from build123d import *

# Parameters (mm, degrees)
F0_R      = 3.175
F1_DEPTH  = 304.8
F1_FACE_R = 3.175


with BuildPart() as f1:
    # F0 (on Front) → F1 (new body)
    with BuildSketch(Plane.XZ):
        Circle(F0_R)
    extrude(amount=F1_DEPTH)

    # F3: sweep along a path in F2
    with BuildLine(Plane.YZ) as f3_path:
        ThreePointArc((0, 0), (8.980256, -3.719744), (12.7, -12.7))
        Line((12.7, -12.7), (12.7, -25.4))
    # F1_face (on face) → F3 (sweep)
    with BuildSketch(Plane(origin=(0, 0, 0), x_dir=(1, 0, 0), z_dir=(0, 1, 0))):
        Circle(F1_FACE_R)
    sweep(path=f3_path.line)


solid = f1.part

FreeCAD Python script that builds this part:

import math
import FreeCAD as App
import Part
import Sketcher
Q = App.Units.Quantity

doc = App.newDocument("Part")
body = doc.addObject("PartDesign::Body", "Body")

sketch1 = body.newObject("Sketcher::SketchObject", "Sketch")
sketch1.AttachmentSupport = (doc.getObject("XZ_Plane"), [""])
sketch1.MapMode = "FlatFace"
sketch1.addGeometry(Part.Circle(App.Vector(0, 0, 0), App.Vector(0, 0, 1), 3.2), False)
sketch1.addConstraint([
    Sketcher.Constraint("Coincident", 0, 3, -1, 1),
    Sketcher.Constraint("Diameter", 0, Q("0.25 in")),
])
pad1 = body.newObject("PartDesign::Pad", "Pad")
pad1.Profile = sketch1
pad1.Length = Q("12 in")

sketch2 = body.newObject("Sketcher::SketchObject", "Sketch001")
sketch2.AttachmentSupport = (doc.getObject("XZ_Plane"), [""])
sketch2.MapMode = "FlatFace"
sketch2.addGeometry(Part.Circle(App.Vector(0, 0, 0), App.Vector(0, 0, 1), 3.2), False)
sketch2.addConstraint([
    Sketcher.Constraint("Coincident", 0, 3, -1, 1),
    Sketcher.Constraint("Diameter", 0, Q("0.25 in")),
])

sketch3 = body.newObject("Sketcher::SketchObject", "Sketch002")
sketch3.AttachmentSupport = (doc.getObject("YZ_Plane"), [""])
sketch3.MapMode = "FlatFace"
sketch3.addGeometry([
    Part.ArcOfCircle(Part.Circle(App.Vector(0, -13, 0), App.Vector(0, 0, 1), 13), math.radians(0), math.radians(90)),
    Part.LineSegment(App.Vector(13, -13, 0), App.Vector(13, -25, 0)),
], False)
sketch3.addConstraint([
    Sketcher.Constraint("Tangent", 0, 1, 1, 1),
    Sketcher.Constraint("Vertical", 1),
    Sketcher.Constraint("Coincident", 0, 2, -1, 1),
    Sketcher.Constraint("PointOnObject", 0, 3, -2),
    Sketcher.Constraint("Radius", 0, Q("0.5 in")),
    Sketcher.Constraint("DistanceY", 1, 2, 1, 1, Q("0.5 in")),
])
doc.recompute()

additivepipe = body.newObject("PartDesign::AdditivePipe", "AdditivePipe")
additivepipe.Profile = sketch2
additivepipe.Spine = (sketch3, ["Edge1", "Edge2"])

doc.recompute()
